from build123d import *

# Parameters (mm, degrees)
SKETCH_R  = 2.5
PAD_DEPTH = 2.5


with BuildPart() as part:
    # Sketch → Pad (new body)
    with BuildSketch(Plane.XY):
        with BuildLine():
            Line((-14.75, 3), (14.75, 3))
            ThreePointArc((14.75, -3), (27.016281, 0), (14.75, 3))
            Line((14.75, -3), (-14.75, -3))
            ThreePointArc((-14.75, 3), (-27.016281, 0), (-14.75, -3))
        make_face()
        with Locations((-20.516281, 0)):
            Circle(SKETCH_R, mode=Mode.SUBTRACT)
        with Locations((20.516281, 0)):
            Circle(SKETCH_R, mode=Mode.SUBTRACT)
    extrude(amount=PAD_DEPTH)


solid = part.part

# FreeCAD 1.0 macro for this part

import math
import FreeCAD as App
import Part
import Sketcher
from FreeCAD import Vector

doc = App.newDocument("Part")
body = doc.addObject("PartDesign::Body", "Body")

# Sketch on XY plane
sketch1 = body.newObject("Sketcher::SketchObject", "Sketch")
sketch1.AttachmentSupport = (doc.getObject("XY_Plane"), [""])
sketch1.MapMode = "FlatFace"
sketch1.addGeometry([
    Part.LineSegment(Vector(14.8, 3, 0), Vector(-14.8, 3, 0)),  # 0
    Part.ArcOfCircle(Part.Circle(Vector(-20.5, 0, 0), Vector(0, 0, 1), 6.5), math.radians(27), math.radians(333)),  # 1
    Part.LineSegment(Vector(-14.8, -3, 0), Vector(14.8, -3, 0)),  # 2
    Part.ArcOfCircle(Part.Circle(Vector(20.5, 0, 0), Vector(0, 0, 1), 6.5), math.radians(-153), math.radians(153)),  # 3
    Part.Circle(Vector(20.5, 0, 0), Vector(0, 0, 1), 2.5),  # 4
    Part.Circle(Vector(-20.5, 0, 0), Vector(0, 0, 1), 2.5),  # 5
], False)
sketch1.addConstraint([
    Sketcher.Constraint("Coincident", 0, 2, 1, 1),
    Sketcher.Constraint("Coincident", 1, 2, 2, 1),
    Sketcher.Constraint("Coincident", 2, 2, 3, 1),
    Sketcher.Constraint("Coincident", 3, 2, 0, 1),
    Sketcher.Constraint("Horizontal", 0),
    Sketcher.Constraint("Horizontal", 2),
    Sketcher.Constraint("Coincident", 4, 3, 3, 3),
    Sketcher.Constraint("Coincident", 5, 3, 1, 3),
    Sketcher.Constraint("Equal", 1, 3),
    Sketcher.Constraint("Equal", 4, 5),
    Sketcher.Constraint("Symmetric", 1, 3, 3, 3, -1, 1),
    Sketcher.Constraint("Symmetric", 0, 2, 1, 2, -1),
    Sketcher.Constraint("Diameter", 4, 5.0),
    Sketcher.Constraint("Radius", 1, 6.5),
    Sketcher.Constraint("DistanceX", 0, 2, 0, 1, 29.5),
    Sketcher.Constraint("DistanceY", -1, 1, 0, 2, 3.0),
])
pad1 = body.newObject("PartDesign::Pad", "Pad")
pad1.Profile = sketch1
pad1.Length = 2.5

doc.recompute()
